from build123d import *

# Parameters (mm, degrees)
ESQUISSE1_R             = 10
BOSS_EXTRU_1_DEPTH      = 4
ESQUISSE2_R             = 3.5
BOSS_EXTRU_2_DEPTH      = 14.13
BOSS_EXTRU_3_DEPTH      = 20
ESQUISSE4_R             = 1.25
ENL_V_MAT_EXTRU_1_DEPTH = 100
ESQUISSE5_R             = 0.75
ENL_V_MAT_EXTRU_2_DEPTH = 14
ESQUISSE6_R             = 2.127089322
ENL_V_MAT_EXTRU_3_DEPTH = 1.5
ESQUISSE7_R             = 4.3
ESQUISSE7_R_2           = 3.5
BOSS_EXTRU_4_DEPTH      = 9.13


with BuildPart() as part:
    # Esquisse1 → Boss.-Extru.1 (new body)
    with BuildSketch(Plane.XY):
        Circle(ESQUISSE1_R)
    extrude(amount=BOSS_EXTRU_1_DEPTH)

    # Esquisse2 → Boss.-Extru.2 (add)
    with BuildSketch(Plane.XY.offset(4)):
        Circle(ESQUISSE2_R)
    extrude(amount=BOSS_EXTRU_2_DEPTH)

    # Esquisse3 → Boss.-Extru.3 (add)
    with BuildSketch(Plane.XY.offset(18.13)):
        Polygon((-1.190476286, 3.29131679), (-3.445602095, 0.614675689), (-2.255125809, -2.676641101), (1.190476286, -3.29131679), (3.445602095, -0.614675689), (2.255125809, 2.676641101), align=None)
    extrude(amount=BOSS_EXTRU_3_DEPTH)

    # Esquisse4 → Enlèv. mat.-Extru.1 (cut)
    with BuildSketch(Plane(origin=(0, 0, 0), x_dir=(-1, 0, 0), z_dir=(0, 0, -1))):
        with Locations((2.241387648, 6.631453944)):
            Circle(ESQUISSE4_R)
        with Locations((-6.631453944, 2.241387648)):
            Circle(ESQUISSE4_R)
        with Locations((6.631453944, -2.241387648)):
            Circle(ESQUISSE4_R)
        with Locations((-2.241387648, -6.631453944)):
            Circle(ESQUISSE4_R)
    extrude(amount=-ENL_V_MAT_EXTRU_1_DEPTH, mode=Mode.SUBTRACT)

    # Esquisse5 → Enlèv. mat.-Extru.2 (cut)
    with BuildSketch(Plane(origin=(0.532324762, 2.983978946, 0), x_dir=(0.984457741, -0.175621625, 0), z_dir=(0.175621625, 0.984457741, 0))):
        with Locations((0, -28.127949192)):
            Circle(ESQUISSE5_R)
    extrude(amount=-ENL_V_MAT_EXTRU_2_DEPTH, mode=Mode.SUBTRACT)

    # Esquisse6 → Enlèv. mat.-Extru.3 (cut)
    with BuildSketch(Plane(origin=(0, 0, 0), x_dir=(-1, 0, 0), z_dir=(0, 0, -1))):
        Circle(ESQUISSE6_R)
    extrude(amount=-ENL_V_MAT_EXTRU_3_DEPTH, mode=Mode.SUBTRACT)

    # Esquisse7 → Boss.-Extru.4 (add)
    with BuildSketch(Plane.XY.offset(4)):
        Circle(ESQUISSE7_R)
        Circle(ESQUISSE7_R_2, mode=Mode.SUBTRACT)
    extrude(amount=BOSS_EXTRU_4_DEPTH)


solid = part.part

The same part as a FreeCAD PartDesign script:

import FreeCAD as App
import Part
import Sketcher

V = App.Vector
Q = App.Units.Quantity


def add_polygon(sketch, points):
    """Adds a closed chain of lines whose ends are joined by coincident constraints."""
    first, n = sketch.GeometryCount, len(points)
    for a, b in zip(points, points[1:] + points[:1]):
        sketch.addGeometry(Part.LineSegment(App.Vector(*a, 0), App.Vector(*b, 0)), False)
    for i in range(n):
        sketch.addConstraint(Sketcher.Constraint("Coincident", first + i, 2, first + (i + 1) % n, 1))

doc = App.newDocument("Part")
params = doc.addObject("Spreadsheet::Sheet", "Params")
for row, (alias, value) in enumerate([
    ("sketch1_diameter", "20 mm"),
    ("pad1_length", "4 mm"),
    ("sketch2_diameter", "7 mm"),
    ("pad2_length", "14.13 mm"),
    ("sketch3_length", "3.5 mm"),
    ("pad3_length", "20 mm"),
    ("sketch4_diameter", "2.5 mm"),
    ("pocket1_length", "100 mm"),
    ("sketch5_diameter", "1.5 mm"),
    ("pocket2_length", "14 mm"),
    ("pocket3_length", "1.5 mm"),
    ("sketch7_diameter", "7 mm"),
    ("sketch7_diameter2", "8.6 mm"),
    ("pad4_length", "9.13 mm"),
], start=1):
    params.set(f"A{row}", alias)
    params.set(f"B{row}", "=" + value)
    params.setAlias(f"B{row}", alias)

body = doc.addObject("PartDesign::Body", "Body")

# Sketch on XY plane
sketch1 = doc.addObject("Sketcher::SketchObject", "Sketch")
body.addObject(sketch1)
sketch1.AttachmentSupport = (doc.XY_Plane, [""])
sketch1.MapMode = "FlatFace"
sketch1.addGeometry(Part.Circle(V(0, 0, 0), V(0, 0, 1), 10), False)
sketch1.addConstraint([
    Sketcher.Constraint("Coincident", 0, 3, -1, 1),
    Sketcher.Constraint("Diameter", 0, Q("20 mm")),
])
sketch1.setExpression("Constraints[1]", "Params.sketch1_diameter")
pad1 = doc.addObject("PartDesign::Pad", "Pad")
body.addObject(pad1)
pad1.Profile = sketch1
pad1.setExpression("Length", "Params.pad1_length")

# Sketch on XY plane
sketch2 = doc.addObject("Sketcher::SketchObject", "Sketch001")
body.addObject(sketch2)
sketch2.AttachmentSupport = (doc.XY_Plane, [""])
sketch2.MapMode = "FlatFace"
sketch2.AttachmentOffset = App.Placement(V(0, 0, 4), App.Rotation())
sketch2.addGeometry(Part.Circle(V(0, 0, 0), V(0, 0, 1), 3.5), False)
sketch2.addConstraint([
    Sketcher.Constraint("Coincident", 0, 3, -1, 1),
    Sketcher.Constraint("Diameter", 0, Q("7 mm")),
])
sketch2.setExpression("Constraints[1]", "Params.sketch2_diameter")
pad2 = doc.addObject("PartDesign::Pad", "Pad001")
body.addObject(pad2)
pad2.Profile = sketch2
pad2.setExpression("Length", "Params.pad2_length")

# Sketch on XY plane
sketch3 = doc.addObject("Sketcher::SketchObject", "Sketch002")
body.addObject(sketch3)
sketch3.AttachmentSupport = (doc.XY_Plane, [""])
sketch3.MapMode = "FlatFace"
sketch3.AttachmentOffset = App.Placement(V(0, 0, 18.13), App.Rotation())
add_polygon(sketch3, [(-1.2, 3.3), (-3.4, 0.6), (-2.3, -2.7), (1.2, -3.3), (3.4, -0.6), (2.3, 2.7)])  # lines 0-5
sketch3.addConstraint([
    Sketcher.Constraint("Symmetric", 0, 2, 3, 2, -1, 1),
    Sketcher.Constraint("Symmetric", 1, 2, 4, 2, -1, 1),
    Sketcher.Constraint("Symmetric", 2, 2, 5, 2, -1, 1),
    Sketcher.Constraint("Equal", 0, 1),
    Sketcher.Constraint("Equal", 1, 2),
    Sketcher.Constraint("Distance", 0, Q("3.5 mm")),
    Sketcher.Constraint("DistanceY", 1, 2, -1, 1, Q("2.676641 mm")),
    Sketcher.Constraint("DistanceX", 0, 2, 2, 2, Q("4.636078 mm")),
    Sketcher.Constraint("DistanceY", 2, 2, 3, 2, Q("2.676641 mm")),
])
sketch3.setExpression("Constraints[11]", "Params.sketch3_length")
pad3 = doc.addObject("PartDesign::Pad", "Pad002")
body.addObject(pad3)
pad3.Profile = sketch3
pad3.setExpression("Length", "Params.pad3_length")

# Sketch on XY plane
sketch4 = doc.addObject("Sketcher::SketchObject", "Sketch003")
body.addObject(sketch4)
sketch4.AttachmentSupport = (doc.XY_Plane, [""])
sketch4.MapMode = "FlatFace"
sketch4.addGeometry([
    Part.Circle(V(-2.2, 6.6, 0), V(0, 0, 1), 1.2),
    Part.Circle(V(6.6, 2.2, 0), V(0, 0, 1), 1.2),
    Part.Circle(V(-6.6, -2.2, 0), V(0, 0, 1), 1.2),
    Part.Circle(V(2.2, -6.6, 0), V(0, 0, 1), 1.2),
], False)
sketch4.addConstraint([
    Sketcher.Constraint("Equal", 0, 1),
    Sketcher.Constraint("Equal", 1, 2),
    Sketcher.Constraint("Equal", 2, 3),
    Sketcher.Constraint("Symmetric", 1, 3, 2, 3, -1, 1),
    Sketcher.Constraint("Symmetric", 0, 3, 3, 3, -1, 1),
    Sketcher.Constraint("Diameter", 0, Q("2.5 mm")),
    Sketcher.Constraint("DistanceX", 0, 3, 1, 3, Q("8.872842 mm")),
    Sketcher.Constraint("DistanceY", 2, 3, 0, 3, Q("8.872842 mm")),
    Sketcher.Constraint("DistanceX", 0, 3, -1, 1, Q("2.241388 mm")),
    Sketcher.Constraint("DistanceY", -1, 1, 0, 3, Q("6.631454 mm")),
])
sketch4.setExpression("Constraints[5]", "Params.sketch4_diameter")
pocket1 = doc.addObject("PartDesign::Pocket", "Pocket")
body.addObject(pocket1)
pocket1.Profile = sketch4
pocket1.setExpression("Length", "Params.pocket1_length")
pocket1.Reversed = True

# Sketch on an angled plane
sketch5 = doc.addObject("Sketcher::SketchObject", "Sketch004")
body.addObject(sketch5)
sketch5.Placement = App.Placement(V(0.532325, 2.983979, 0), App.Rotation(V(0.984457742, -0.175621625, 0), V(0, 0, -1.000000001), V(0.175621625, 0.984457742, 0), "ZXY"))
sketch5.addGeometry(Part.Circle(V(0, -28.1, 0), V(0, 0, 1), 0.8), False)
sketch5.addConstraint([
    Sketcher.Constraint("PointOnObject", 0, 3, -2),
    Sketcher.Constraint("Diameter", 0, Q("1.5 mm")),
    Sketcher.Constraint("DistanceY", 0, 3, -1, 1, Q("28.127949 mm")),
])
sketch5.setExpression("Constraints[1]", "Params.sketch5_diameter")
pocket2 = doc.addObject("PartDesign::Pocket", "Pocket001")
body.addObject(pocket2)
pocket2.Profile = sketch5
pocket2.setExpression("Length", "Params.pocket2_length")

# Sketch on XY plane
sketch6 = doc.addObject("Sketcher::SketchObject", "Sketch005")
body.addObject(sketch6)
sketch6.AttachmentSupport = (doc.XY_Plane, [""])
sketch6.MapMode = "FlatFace"
sketch6.addGeometry(Part.Circle(V(0, 0, 0), V(0, 0, 1), 2.1), False)
sketch6.addConstraint([
    Sketcher.Constraint("Coincident", 0, 3, -1, 1),
    Sketcher.Constraint("Diameter", 0, Q("4.254179 mm")),
])
pocket3 = doc.addObject("PartDesign::Pocket", "Pocket002")
body.addObject(pocket3)
pocket3.Profile = sketch6
pocket3.setExpression("Length", "Params.pocket3_length")
pocket3.Reversed = True

# Sketch on XY plane
sketch7 = doc.addObject("Sketcher::SketchObject", "Sketch006")
body.addObject(sketch7)
sketch7.AttachmentSupport = (doc.XY_Plane, [""])
sketch7.MapMode = "FlatFace"
sketch7.AttachmentOffset = App.Placement(V(0, 0, 4), App.Rotation())
sketch7.addGeometry([
    Part.Circle(V(0, 0, 0), V(0, 0, 1), 4.3),
    Part.Circle(V(0, 0, 0), V(0, 0, 1), 3.5),
], False)
sketch7.addConstraint([
    Sketcher.Constraint("Coincident", 0, 3, -1, 1),
    Sketcher.Constraint("Coincident", 1, 3, -1, 1),
    Sketcher.Constraint("Diameter", 1, Q("7 mm")),
    Sketcher.Constraint("Diameter", 0, Q("8.6 mm")),
])
sketch7.setExpression("Constraints[2]", "Params.sketch7_diameter")
sketch7.setExpression("Constraints[3]", "Params.sketch7_diameter2")
pad4 = doc.addObject("PartDesign::Pad", "Pad003")
body.addObject(pad4)
pad4.Profile = sketch7
pad4.setExpression("Length", "Params.pad4_length")

doc.recompute()
